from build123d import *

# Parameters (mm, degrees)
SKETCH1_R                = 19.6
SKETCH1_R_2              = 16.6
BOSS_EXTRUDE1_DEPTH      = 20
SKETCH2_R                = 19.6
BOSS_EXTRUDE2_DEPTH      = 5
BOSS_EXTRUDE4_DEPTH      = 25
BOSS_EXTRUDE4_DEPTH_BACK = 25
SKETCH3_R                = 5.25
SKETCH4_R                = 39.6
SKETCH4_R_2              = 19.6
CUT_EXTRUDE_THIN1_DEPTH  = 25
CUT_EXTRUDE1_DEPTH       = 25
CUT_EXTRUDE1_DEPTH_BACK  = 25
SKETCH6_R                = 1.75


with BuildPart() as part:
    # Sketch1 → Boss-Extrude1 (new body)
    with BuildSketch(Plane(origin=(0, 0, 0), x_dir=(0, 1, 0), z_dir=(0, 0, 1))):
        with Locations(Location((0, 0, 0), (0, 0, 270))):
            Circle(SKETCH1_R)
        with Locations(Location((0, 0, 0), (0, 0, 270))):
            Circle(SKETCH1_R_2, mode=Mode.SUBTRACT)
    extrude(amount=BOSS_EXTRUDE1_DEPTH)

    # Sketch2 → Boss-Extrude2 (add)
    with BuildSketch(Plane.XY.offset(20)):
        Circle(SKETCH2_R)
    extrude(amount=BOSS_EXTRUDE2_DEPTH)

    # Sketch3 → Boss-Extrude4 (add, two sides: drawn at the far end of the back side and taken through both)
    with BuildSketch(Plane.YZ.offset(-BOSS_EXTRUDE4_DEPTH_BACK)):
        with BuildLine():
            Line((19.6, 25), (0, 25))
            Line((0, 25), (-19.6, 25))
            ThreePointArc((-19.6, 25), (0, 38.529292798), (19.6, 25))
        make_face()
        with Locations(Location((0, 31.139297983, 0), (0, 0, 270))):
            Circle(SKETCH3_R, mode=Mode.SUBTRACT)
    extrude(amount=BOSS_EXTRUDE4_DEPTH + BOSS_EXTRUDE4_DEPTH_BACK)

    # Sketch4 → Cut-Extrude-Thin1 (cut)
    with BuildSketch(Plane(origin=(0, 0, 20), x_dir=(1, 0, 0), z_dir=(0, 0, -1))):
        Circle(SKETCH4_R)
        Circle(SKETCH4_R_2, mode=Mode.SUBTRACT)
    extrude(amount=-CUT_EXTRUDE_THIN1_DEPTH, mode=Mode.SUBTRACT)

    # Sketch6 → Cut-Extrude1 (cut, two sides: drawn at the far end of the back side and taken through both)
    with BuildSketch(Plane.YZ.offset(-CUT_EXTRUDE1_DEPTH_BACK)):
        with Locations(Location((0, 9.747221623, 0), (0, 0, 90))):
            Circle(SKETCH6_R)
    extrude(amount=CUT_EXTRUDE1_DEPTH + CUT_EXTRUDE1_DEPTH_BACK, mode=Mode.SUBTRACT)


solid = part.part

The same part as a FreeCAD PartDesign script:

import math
import FreeCAD as App
import Part
import Sketcher

V = App.Vector
Q = App.Units.Quantity

doc = App.newDocument("Part")
body = doc.addObject("PartDesign::Body", "Body")

sketch1 = doc.addObject("Sketcher::SketchObject", "Sketch")
body.addObject(sketch1)
sketch1.AttachmentSupport = (doc.XY_Plane, [""])
sketch1.MapMode = "FlatFace"
sketch1.addGeometry(Part.Circle(V(0, 0, 0), V(0, 0, 1), 20), False)
sketch1.addGeometry(Part.Circle(V(0, 0, 0), V(0, 0, 1), 17), False)
sketch1.addConstraint(Sketcher.Constraint("Coincident", 0, 3, -1, 1))
sketch1.addConstraint(Sketcher.Constraint("Coincident", 1, 3, -1, 1))
sketch1.addConstraint(Sketcher.Constraint("Diameter", 0, Q("39.2 mm")))
sketch1.addConstraint(Sketcher.Constraint("Diameter", 1, Q("33.2 mm")))
pad1 = doc.addObject("PartDesign::Pad", "Pad")
body.addObject(pad1)
pad1.Profile = sketch1
pad1.Length = 20

sketch2 = doc.addObject("Sketcher::SketchObject", "Sketch001")
body.addObject(sketch2)
sketch2.AttachmentSupport = (doc.XY_Plane, [""])
sketch2.MapMode = "FlatFace"
sketch2.AttachmentOffset = App.Placement(V(0, 0, 20), App.Rotation())
sketch2.addGeometry(Part.Circle(V(0, 0, 0), V(0, 0, 1), 20), False)
sketch2.addConstraint(Sketcher.Constraint("Coincident", 0, 3, -1, 1))
sketch2.addConstraint(Sketcher.Constraint("Diameter", 0, Q("39.2 mm")))
pad2 = doc.addObject("PartDesign::Pad", "Pad001")
body.addObject(pad2)
pad2.Profile = sketch2
pad2.Length = 5

sketch3 = doc.addObject("Sketcher::SketchObject", "Sketch002")
body.addObject(sketch3)
sketch3.AttachmentSupport = (doc.YZ_Plane, [""])
sketch3.MapMode = "FlatFace"
sketch3.addGeometry(Part.LineSegment(V(-20, 25, 0), V(20, 25, 0)), False)
sketch3.addGeometry(Part.ArcOfCircle(Part.Circle(V(0, 18, 0), V(0, 0, 1), 21), math.radians(21), math.radians(159)), False)
sketch3.addGeometry(Part.Circle(V(0, 31, 0), V(0, 0, 1), 5), False)
sketch3.addConstraint(Sketcher.Constraint("Coincident", 0, 1, 1, 2))
sketch3.addConstraint(Sketcher.Constraint("Coincident", 1, 1, 0, 2))
sketch3.addConstraint(Sketcher.Constraint("Horizontal", 0))
sketch3.addConstraint(Sketcher.Constraint("PointOnObject", 1, 3, -2))
sketch3.addConstraint(Sketcher.Constraint("PointOnObject", 2, 3, -2))
sketch3.addConstraint(Sketcher.Constraint("Diameter", 2, Q("10.5 mm")))
sketch3.addConstraint(Sketcher.Constraint("DistanceX", 0, 1, 0, 2, Q("39.2 mm")))
sketch3.addConstraint(Sketcher.Constraint("DistanceY", -1, 1, 0, 1, Q("25 mm")))
sketch3.addConstraint(Sketcher.Constraint("Radius", 1, Q("20.961989 mm")))
sketch3.addConstraint(Sketcher.Constraint("DistanceY", -1, 1, 2, 3, Q("31.139298 mm")))
pad3 = doc.addObject("PartDesign::Pad", "Pad002")
body.addObject(pad3)
pad3.Profile = sketch3
pad3.Type = "TwoLengths"
pad3.Length = 25
pad3.Length2 = 25

sketch4 = doc.addObject("Sketcher::SketchObject", "Sketch003")
body.addObject(sketch4)
sketch4.AttachmentSupport = (doc.XY_Plane, [""])
sketch4.MapMode = "FlatFace"
sketch4.AttachmentOffset = App.Placement(V(0, 0, 20), App.Rotation())
sketch4.addGeometry(Part.Circle(V(0, 0, 0), V(0, 0, 1), 40), False)
sketch4.addGeometry(Part.Circle(V(0, 0, 0), V(0, 0, 1), 20), False)
sketch4.addConstraint(Sketcher.Constraint("Coincident", 0, 3, -1, 1))
sketch4.addConstraint(Sketcher.Constraint("Coincident", 1, 3, -1, 1))
sketch4.addConstraint(Sketcher.Constraint("Diameter", 0, Q("79.2 mm")))
sketch4.addConstraint(Sketcher.Constraint("Diameter", 1, Q("39.2 mm")))
pocket1 = doc.addObject("PartDesign::Pocket", "Pocket")
body.addObject(pocket1)
pocket1.Profile = sketch4
pocket1.Length = 25
pocket1.Reversed = True

sketch5 = doc.addObject("Sketcher::SketchObject", "Sketch004")
body.addObject(sketch5)
sketch5.AttachmentSupport = (doc.YZ_Plane, [""])
sketch5.MapMode = "FlatFace"
sketch5.addGeometry(Part.Circle(V(0, 9.7, 0), V(0, 0, 1), 1.8), False)
sketch5.addConstraint(Sketcher.Constraint("PointOnObject", 0, 3, -2))
sketch5.addConstraint(Sketcher.Constraint("Diameter", 0, Q("3.5 mm")))
sketch5.addConstraint(Sketcher.Constraint("DistanceY", -1, 1, 0, 3, Q("9.747222 mm")))
pocket2 = doc.addObject("PartDesign::Pocket", "Pocket001")
body.addObject(pocket2)
pocket2.Profile = sketch5
pocket2.Type = "ThroughAll"
pocket2.Midplane = True

doc.recompute()
